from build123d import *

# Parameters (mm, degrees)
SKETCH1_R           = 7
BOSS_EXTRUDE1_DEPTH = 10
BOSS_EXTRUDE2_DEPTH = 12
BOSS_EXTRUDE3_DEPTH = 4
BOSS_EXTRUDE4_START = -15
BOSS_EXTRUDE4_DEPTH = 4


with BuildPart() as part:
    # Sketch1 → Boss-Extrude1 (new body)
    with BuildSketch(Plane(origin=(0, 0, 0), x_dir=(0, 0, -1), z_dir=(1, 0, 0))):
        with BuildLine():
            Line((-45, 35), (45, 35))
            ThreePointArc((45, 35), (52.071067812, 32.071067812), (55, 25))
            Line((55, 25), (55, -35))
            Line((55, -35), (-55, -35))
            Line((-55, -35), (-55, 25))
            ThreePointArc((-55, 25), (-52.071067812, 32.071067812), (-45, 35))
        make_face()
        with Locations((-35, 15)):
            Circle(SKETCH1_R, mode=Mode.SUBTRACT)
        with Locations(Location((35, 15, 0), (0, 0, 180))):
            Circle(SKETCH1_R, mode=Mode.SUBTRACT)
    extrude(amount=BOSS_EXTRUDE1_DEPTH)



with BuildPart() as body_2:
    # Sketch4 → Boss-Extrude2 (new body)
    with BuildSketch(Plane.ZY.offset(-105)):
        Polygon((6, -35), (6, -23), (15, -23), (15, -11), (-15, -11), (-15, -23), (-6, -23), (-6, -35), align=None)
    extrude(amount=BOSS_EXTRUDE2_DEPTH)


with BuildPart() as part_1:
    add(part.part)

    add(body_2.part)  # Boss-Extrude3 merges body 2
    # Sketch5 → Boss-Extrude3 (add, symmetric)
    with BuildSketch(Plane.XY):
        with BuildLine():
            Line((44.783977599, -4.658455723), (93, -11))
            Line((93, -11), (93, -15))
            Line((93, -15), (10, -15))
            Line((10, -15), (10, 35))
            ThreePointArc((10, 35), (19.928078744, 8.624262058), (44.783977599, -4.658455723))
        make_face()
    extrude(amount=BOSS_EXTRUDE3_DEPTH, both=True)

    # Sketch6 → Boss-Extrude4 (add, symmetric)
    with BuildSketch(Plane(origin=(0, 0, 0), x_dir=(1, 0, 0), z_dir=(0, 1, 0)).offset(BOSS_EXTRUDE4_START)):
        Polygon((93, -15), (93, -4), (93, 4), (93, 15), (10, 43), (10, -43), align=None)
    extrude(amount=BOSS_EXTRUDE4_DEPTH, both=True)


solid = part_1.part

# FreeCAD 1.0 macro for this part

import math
import FreeCAD as App
import Part
import Sketcher

V = App.Vector
Q = App.Units.Quantity

doc = App.newDocument("Part")
body = doc.addObject("PartDesign::Body", "Body")

sketch1 = body.newObject("Sketcher::SketchObject", "Sketch")
sketch1.AttachmentSupport = (doc.getObject("YZ_Plane"), [""])
sketch1.MapMode = "FlatFace"
sketch1.addGeometry(Part.LineSegment(V(35, -45, 0), V(35, 45, 0)), False)
sketch1.addGeometry(Part.ArcOfCircle(Part.Circle(V(25, 45, 0), V(0, 0, 1), 10), math.radians(0), math.radians(90)), False)
sketch1.addGeometry(Part.LineSegment(V(25, 55, 0), V(-35, 55, 0)), False)
sketch1.addGeometry(Part.LineSegment(V(-35, 55, 0), V(-35, -55, 0)), False)
sketch1.addGeometry(Part.LineSegment(V(-35, -55, 0), V(25, -55, 0)), False)
sketch1.addGeometry(Part.ArcOfCircle(Part.Circle(V(25, -45, 0), V(0, 0, 1), 10), math.radians(-90), math.radians(0)), False)
sketch1.addGeometry(Part.Circle(V(15, -35, 0), V(0, 0, 1), 7), False)
sketch1.addGeometry(Part.Circle(V(15, 35, 0), V(0, 0, 1), 7), False)
sketch1.addConstraint(Sketcher.Constraint("Tangent", 0, 2, 1, 1))
sketch1.addConstraint(Sketcher.Constraint("Tangent", 1, 2, 2, 1))
sketch1.addConstraint(Sketcher.Constraint("Coincident", 2, 2, 3, 1))
sketch1.addConstraint(Sketcher.Constraint("Coincident", 3, 2, 4, 1))
sketch1.addConstraint(Sketcher.Constraint("Tangent", 4, 2, 5, 1))
sketch1.addConstraint(Sketcher.Constraint("Tangent", 5, 2, 0, 1))
sketch1.addConstraint(Sketcher.Constraint("Vertical", 0))
sketch1.addConstraint(Sketcher.Constraint("Horizontal", 2))
sketch1.addConstraint(Sketcher.Constraint("Vertical", 3))
sketch1.addConstraint(Sketcher.Constraint("Horizontal", 4))
sketch1.addConstraint(Sketcher.Constraint("Equal", 1, 5))
sketch1.addConstraint(Sketcher.Constraint("Equal", 6, 7))
sketch1.addConstraint(Sketcher.Constraint("Symmetric", 6, 3, 7, 3, -1))
sketch1.addConstraint(Sketcher.Constraint("Diameter", 6, Q("14 mm")))
sketch1.addConstraint(Sketcher.Constraint("Radius", 1, Q("10 mm")))
sketch1.addConstraint(Sketcher.Constraint("DistanceX", 2, 2, 2, 1, Q("60 mm")))
sketch1.addConstraint(Sketcher.Constraint("DistanceY", 0, 1, 0, 2, Q("90 mm")))
sketch1.addConstraint(Sketcher.Constraint("DistanceX", -1, 1, 1, 3, Q("25 mm")))
sketch1.addConstraint(Sketcher.Constraint("DistanceY", -1, 1, 1, 3, Q("45 mm")))
sketch1.addConstraint(Sketcher.Constraint("DistanceX", -1, 1, 6, 3, Q("15 mm")))
sketch1.addConstraint(Sketcher.Constraint("DistanceY", 6, 3, -1, 1, Q("35 mm")))
pad1 = body.newObject("PartDesign::Pad", "Pad")
pad1.Profile = sketch1
pad1.Length = 10
body2 = doc.addObject("PartDesign::Body", "Body001")

sketch2 = body2.newObject("Sketcher::SketchObject", "Sketch001")
sketch2.AttachmentSupport = (doc.getObject("YZ_Plane001"), [""])
sketch2.MapMode = "FlatFace"
sketch2.AttachmentOffset = App.Placement(V(0, 0, 105), App.Rotation())
sketch2.addGeometry(Part.LineSegment(V(-35, 6, 0), V(-23, 6, 0)), False)
sketch2.addGeometry(Part.LineSegment(V(-23, 6, 0), V(-23, 15, 0)), False)
sketch2.addGeometry(Part.LineSegment(V(-23, 15, 0), V(-11, 15, 0)), False)
sketch2.addGeometry(Part.LineSegment(V(-11, 15, 0), V(-11, -15, 0)), False)
sketch2.addGeometry(Part.LineSegment(V(-11, -15, 0), V(-23, -15, 0)), False)
sketch2.addGeometry(Part.LineSegment(V(-23, -15, 0), V(-23, -6, 0)), False)
sketch2.addGeometry(Part.LineSegment(V(-23, -6, 0), V(-35, -6, 0)), False)
sketch2.addGeometry(Part.LineSegment(V(-35, -6, 0), V(-35, 6, 0)), False)
sketch2.addConstraint(Sketcher.Constraint("Coincident", 0, 2, 1, 1))
sketch2.addConstraint(Sketcher.Constraint("Coincident", 1, 2, 2, 1))
sketch2.addConstraint(Sketcher.Constraint("Coincident", 2, 2, 3, 1))
sketch2.addConstraint(Sketcher.Constraint("Coincident", 3, 2, 4, 1))
sketch2.addConstraint(Sketcher.Constraint("Coincident", 4, 2, 5, 1))
sketch2.addConstraint(Sketcher.Constraint("Coincident", 5, 2, 6, 1))
sketch2.addConstraint(Sketcher.Constraint("Coincident", 6, 2, 7, 1))
sketch2.addConstraint(Sketcher.Constraint("Coincident", 7, 2, 0, 1))
sketch2.addConstraint(Sketcher.Constraint("Horizontal", 0))
sketch2.addConstraint(Sketcher.Constraint("Vertical", 1))
sketch2.addConstraint(Sketcher.Constraint("Horizontal", 2))
sketch2.addConstraint(Sketcher.Constraint("Vertical", 3))
sketch2.addConstraint(Sketcher.Constraint("Horizontal", 4))
sketch2.addConstraint(Sketcher.Constraint("Vertical", 5))
sketch2.addConstraint(Sketcher.Constraint("Horizontal", 6))
sketch2.addConstraint(Sketcher.Constraint("Vertical", 7))
sketch2.addConstraint(Sketcher.Constraint("Symmetric", 1, 2, 4, 2, -1))
sketch2.addConstraint(Sketcher.Constraint("Equal", 0, 2))
sketch2.addConstraint(Sketcher.Constraint("Equal", 1, 5))
sketch2.addConstraint(Sketcher.Constraint("Equal", 6, 7))
sketch2.addConstraint(Sketcher.Constraint("DistanceX", 0, 1, 0, 2, Q("12 mm")))
sketch2.addConstraint(Sketcher.Constraint("DistanceY", 1, 1, 1, 2, Q("9 mm")))
sketch2.addConstraint(Sketcher.Constraint("DistanceX", 0, 2, -1, 1, Q("23 mm")))
pad2 = body2.newObject("PartDesign::Pad", "Pad001")
pad2.Profile = sketch2
pad2.Length = 12
pad2.Reversed = True
body.AllowCompound = True
doc.recompute()

boolean = body.newObject("PartDesign::Boolean", "Boolean")
boolean.Type = "Fuse"
boolean.addObjects([body2])

sketch3 = body.newObject("Sketcher::SketchObject", "Sketch002")
sketch3.AttachmentSupport = (doc.getObject("XY_Plane"), [""])
sketch3.MapMode = "FlatFace"
sketch3.addGeometry(Part.LineSegment(V(93, -11, 0), V(44.8, -4.7, 0)), False)
sketch3.addGeometry(Part.ArcOfCircle(Part.Circle(V(50, 35, 0), V(0, 0, 1), 40), math.radians(180), math.radians(263)), False)
sketch3.addGeometry(Part.LineSegment(V(10, 35, 0), V(10, -15, 0)), False)
sketch3.addGeometry(Part.LineSegment(V(10, -15, 0), V(93, -15, 0)), False)
sketch3.addGeometry(Part.LineSegment(V(93, -15, 0), V(93, -11, 0)), False)
sketch3.addConstraint(Sketcher.Constraint("Tangent", 0, 2, 1, 2))
sketch3.addConstraint(Sketcher.Constraint("Tangent", 1, 1, 2, 1))
sketch3.addConstraint(Sketcher.Constraint("Coincident", 2, 2, 3, 1))
sketch3.addConstraint(Sketcher.Constraint("Coincident", 3, 2, 4, 1))
sketch3.addConstraint(Sketcher.Constraint("Coincident", 4, 2, 0, 1))
sketch3.addConstraint(Sketcher.Constraint("Vertical", 2))
sketch3.addConstraint(Sketcher.Constraint("Horizontal", 3))
sketch3.addConstraint(Sketcher.Constraint("Vertical", 4))
sketch3.addConstraint(Sketcher.Constraint("Radius", 1, Q("40 mm")))
sketch3.addConstraint(Sketcher.Constraint("DistanceX", 3, 1, 3, 2, Q("83 mm")))
sketch3.addConstraint(Sketcher.Constraint("DistanceY", 2, 2, 2, 1, Q("50 mm")))
sketch3.addConstraint(Sketcher.Constraint("DistanceY", 4, 1, 4, 2, Q("4 mm")))
sketch3.addConstraint(Sketcher.Constraint("DistanceX", -1, 1, 1, 3, Q("50 mm")))
sketch3.addConstraint(Sketcher.Constraint("DistanceY", -1, 1, 1, 3, Q("35 mm")))
pad3 = body.newObject("PartDesign::Pad", "Pad002")
pad3.Profile = sketch3
pad3.Length = 8
pad3.Midplane = True

sketch4 = body.newObject("Sketcher::SketchObject", "Sketch003")
sketch4.AttachmentSupport = (doc.getObject("XZ_Plane"), [""])
sketch4.MapMode = "FlatFace"
sketch4.AttachmentOffset = App.Placement(V(0, 0, 15), App.Rotation())
sketch4.addGeometry(Part.LineSegment(V(93, 15, 0), V(93, -15, 0)), False)
sketch4.addGeometry(Part.LineSegment(V(93, -15, 0), V(10, -43, 0)), False)
sketch4.addGeometry(Part.LineSegment(V(10, -43, 0), V(10, 43, 0)), False)
sketch4.addGeometry(Part.LineSegment(V(10, 43, 0), V(93, 15, 0)), False)
sketch4.addConstraint(Sketcher.Constraint("Coincident", 0, 2, 1, 1))
sketch4.addConstraint(Sketcher.Constraint("Coincident", 1, 2, 2, 1))
sketch4.addConstraint(Sketcher.Constraint("Coincident", 2, 2, 3, 1))
sketch4.addConstraint(Sketcher.Constraint("Coincident", 3, 2, 0, 1))
sketch4.addConstraint(Sketcher.Constraint("Vertical", 0))
sketch4.addConstraint(Sketcher.Constraint("Vertical", 2))
sketch4.addConstraint(Sketcher.Constraint("Equal", 1, 3))
sketch4.addConstraint(Sketcher.Constraint("DistanceY", 0, 2, 0, 1, Q("30 mm")))
sketch4.addConstraint(Sketcher.Constraint("DistanceY", 2, 1, 2, 2, Q("86 mm")))
sketch4.addConstraint(Sketcher.Constraint("DistanceX", -1, 1, 0, 2, Q("93 mm")))
sketch4.addConstraint(Sketcher.Constraint("DistanceY", 0, 2, -1, 1, Q("15 mm")))
sketch4.addConstraint(Sketcher.Constraint("DistanceX", -1, 1, 1, 2, Q("10 mm")))
pad4 = body.newObject("PartDesign::Pad", "Pad003")
pad4.Profile = sketch4
pad4.Length = 8
pad4.Midplane = True

doc.recompute()
